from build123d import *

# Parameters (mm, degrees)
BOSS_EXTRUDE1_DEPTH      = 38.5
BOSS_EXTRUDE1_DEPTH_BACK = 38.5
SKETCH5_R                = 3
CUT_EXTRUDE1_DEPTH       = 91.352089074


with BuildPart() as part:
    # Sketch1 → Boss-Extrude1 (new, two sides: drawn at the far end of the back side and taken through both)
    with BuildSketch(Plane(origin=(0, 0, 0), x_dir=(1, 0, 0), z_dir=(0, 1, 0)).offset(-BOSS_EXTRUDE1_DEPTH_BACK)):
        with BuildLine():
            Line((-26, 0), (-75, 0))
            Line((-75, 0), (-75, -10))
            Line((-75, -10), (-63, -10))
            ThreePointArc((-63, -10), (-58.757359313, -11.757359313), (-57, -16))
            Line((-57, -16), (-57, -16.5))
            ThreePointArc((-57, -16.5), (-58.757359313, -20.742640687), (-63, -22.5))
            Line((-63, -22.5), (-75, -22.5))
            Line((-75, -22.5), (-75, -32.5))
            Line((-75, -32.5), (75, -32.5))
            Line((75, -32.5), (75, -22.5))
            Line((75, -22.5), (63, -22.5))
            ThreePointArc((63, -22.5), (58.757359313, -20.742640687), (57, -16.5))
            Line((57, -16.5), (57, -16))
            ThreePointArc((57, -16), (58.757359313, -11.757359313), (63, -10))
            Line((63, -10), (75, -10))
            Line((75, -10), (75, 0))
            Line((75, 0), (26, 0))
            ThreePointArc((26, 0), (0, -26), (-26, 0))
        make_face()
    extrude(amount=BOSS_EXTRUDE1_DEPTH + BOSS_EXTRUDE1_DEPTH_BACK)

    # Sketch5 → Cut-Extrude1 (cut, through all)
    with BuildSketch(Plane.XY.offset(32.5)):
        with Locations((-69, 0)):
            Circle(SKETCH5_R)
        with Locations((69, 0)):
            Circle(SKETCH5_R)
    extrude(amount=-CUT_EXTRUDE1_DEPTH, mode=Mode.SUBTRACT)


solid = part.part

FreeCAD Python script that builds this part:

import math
import FreeCAD as App
import Part
import Sketcher
from FreeCAD import Vector

doc = App.newDocument("Part")
body = doc.addObject("PartDesign::Body", "Body")

# Sketch on XZ plane
sketch1 = body.newObject("Sketcher::SketchObject", "Sketch")
sketch1.AttachmentSupport = (doc.getObject("XZ_Plane"), [""])
sketch1.MapMode = "FlatFace"
sketch1.addGeometry([
    Part.LineSegment(Vector(-26, 0, 0), Vector(-75, 0, 0)),  # 0
    Part.LineSegment(Vector(-75, 0, 0), Vector(-75, 10, 0)),  # 1
    Part.LineSegment(Vector(-75, 10, 0), Vector(-63, 10, 0)),  # 2
    Part.ArcOfCircle(Part.Circle(Vector(-63, 16, 0), Vector(0, 0, 1), 6), math.radians(-90), math.radians(0)),  # 3
    Part.LineSegment(Vector(-57, 16, 0), Vector(-57, 16.5, 0)),  # 4
    Part.ArcOfCircle(Part.Circle(Vector(-63, 16.5, 0), Vector(0, 0, 1), 6), math.radians(0), math.radians(90)),  # 5
    Part.LineSegment(Vector(-63, 22.5, 0), Vector(-75, 22.5, 0)),  # 6
    Part.LineSegment(Vector(-75, 22.5, 0), Vector(-75, 32.5, 0)),  # 7
    Part.LineSegment(Vector(-75, 32.5, 0), Vector(75, 32.5, 0)),  # 8
    Part.LineSegment(Vector(75, 32.5, 0), Vector(75, 22.5, 0)),  # 9
    Part.LineSegment(Vector(75, 22.5, 0), Vector(63, 22.5, 0)),  # 10
    Part.ArcOfCircle(Part.Circle(Vector(63, 16.5, 0), Vector(0, 0, 1), 6), math.radians(90), math.radians(180)),  # 11
    Part.LineSegment(Vector(57, 16.5, 0), Vector(57, 16, 0)),  # 12
    Part.ArcOfCircle(Part.Circle(Vector(63, 16, 0), Vector(0, 0, 1), 6), math.radians(180), math.radians(270)),  # 13
    Part.LineSegment(Vector(63, 10, 0), Vector(75, 10, 0)),  # 14
    Part.LineSegment(Vector(75, 10, 0), Vector(75, 0, 0)),  # 15
    Part.LineSegment(Vector(75, 0, 0), Vector(26, 0, 0)),  # 16
    Part.ArcOfCircle(Part.Circle(Vector(0, 0, 0), Vector(0, 0, 1), 26), math.radians(0), math.radians(180)),  # 17
], False)
sketch1.addConstraint([
    Sketcher.Constraint("Coincident", 0, 2, 1, 1),
    Sketcher.Constraint("Coincident", 1, 2, 2, 1),
    Sketcher.Constraint("Tangent", 2, 2, 3, 1),
    Sketcher.Constraint("Tangent", 3, 2, 4, 1),
    Sketcher.Constraint("Tangent", 4, 2, 5, 1),
    Sketcher.Constraint("Tangent", 5, 2, 6, 1),
    Sketcher.Constraint("Coincident", 6, 2, 7, 1),
    Sketcher.Constraint("Coincident", 7, 2, 8, 1),
    Sketcher.Constraint("Coincident", 8, 2, 9, 1),
    Sketcher.Constraint("Coincident", 9, 2, 10, 1),
    Sketcher.Constraint("Tangent", 10, 2, 11, 1),
    Sketcher.Constraint("Tangent", 11, 2, 12, 1),
    Sketcher.Constraint("Tangent", 12, 2, 13, 1),
    Sketcher.Constraint("Tangent", 13, 2, 14, 1),
    Sketcher.Constraint("Coincident", 14, 2, 15, 1),
    Sketcher.Constraint("Coincident", 15, 2, 16, 1),
    Sketcher.Constraint("Coincident", 16, 2, 17, 1),
    Sketcher.Constraint("Coincident", 17, 2, 0, 1),
    Sketcher.Constraint("Horizontal", 0),
    Sketcher.Constraint("Vertical", 1),
    Sketcher.Constraint("Horizontal", 2),
    Sketcher.Constraint("Vertical", 4),
    Sketcher.Constraint("Horizontal", 6),
    Sketcher.Constraint("Vertical", 7),
    Sketcher.Constraint("Horizontal", 8),
    Sketcher.Constraint("Vertical", 9),
    Sketcher.Constraint("Horizontal", 10),
    Sketcher.Constraint("Vertical", 12),
    Sketcher.Constraint("Horizontal", 14),
    Sketcher.Constraint("Vertical", 15),
    Sketcher.Constraint("Horizontal", 16),
    Sketcher.Constraint("Coincident", 17, 3, -1, 1),
    Sketcher.Constraint("Equal", 3, 5),
    Sketcher.Constraint("Equal", 5, 11),
    Sketcher.Constraint("Equal", 11, 13),
    Sketcher.Constraint("Symmetric", 0, 2, 15, 2, -1, 1),
    Sketcher.Constraint("Symmetric", 5, 3, 11, 3, -2),
    Sketcher.Constraint("PointOnObject", 0, 2, -1),
    Sketcher.Constraint("Horizontal", 3, 3, 13, 3),
    Sketcher.Constraint("Vertical", 1, 2, 6, 2),
    Sketcher.Constraint("Vertical", 9, 2, 14, 2),
    Sketcher.Constraint("Equal", 1, 7),
    Sketcher.Constraint("Radius", 3, 6.0),
    Sketcher.Constraint("Radius", 17, 26.0),
    Sketcher.Constraint("DistanceX", 0, 2, 0, 1, 49.0),
    Sketcher.Constraint("DistanceX", 2, 1, 2, 2, 12.0),
    Sketcher.Constraint("DistanceY", 1, 1, 1, 2, 10.0),
    Sketcher.Constraint("DistanceY", 4, 1, 4, 2, 0.5),
])
pad1 = body.newObject("PartDesign::Pad", "Pad")
pad1.Profile = sketch1
pad1.Type = "TwoLengths"
pad1.Length = 38.5
pad1.Length2 = 38.5
pad1.Reversed = True

# Sketch on XY plane
sketch2 = body.newObject("Sketcher::SketchObject", "Sketch001")
sketch2.AttachmentSupport = (doc.getObject("XY_Plane"), [""])
sketch2.MapMode = "FlatFace"
sketch2.AttachmentOffset = App.Placement(Vector(0, 0, 32.5), App.Rotation())
sketch2.addGeometry([
    Part.Circle(Vector(-69, 0, 0), Vector(0, 0, 1), 3),
    Part.Circle(Vector(69, 0, 0), Vector(0, 0, 1), 3),
], False)
sketch2.addConstraint([
    Sketcher.Constraint("Equal", 0, 1),
    Sketcher.Constraint("Symmetric", 0, 3, 1, 3, -1, 1),
    Sketcher.Constraint("PointOnObject", 0, 3, -1),
    Sketcher.Constraint("Diameter", 0, 6.0),
    Sketcher.Constraint("DistanceX", 0, 3, -1, 1, 69.0),
])
pocket1 = body.newObject("PartDesign::Pocket", "Pocket")
pocket1.Profile = sketch2
pocket1.Type = "ThroughAll"

doc.recompute()
